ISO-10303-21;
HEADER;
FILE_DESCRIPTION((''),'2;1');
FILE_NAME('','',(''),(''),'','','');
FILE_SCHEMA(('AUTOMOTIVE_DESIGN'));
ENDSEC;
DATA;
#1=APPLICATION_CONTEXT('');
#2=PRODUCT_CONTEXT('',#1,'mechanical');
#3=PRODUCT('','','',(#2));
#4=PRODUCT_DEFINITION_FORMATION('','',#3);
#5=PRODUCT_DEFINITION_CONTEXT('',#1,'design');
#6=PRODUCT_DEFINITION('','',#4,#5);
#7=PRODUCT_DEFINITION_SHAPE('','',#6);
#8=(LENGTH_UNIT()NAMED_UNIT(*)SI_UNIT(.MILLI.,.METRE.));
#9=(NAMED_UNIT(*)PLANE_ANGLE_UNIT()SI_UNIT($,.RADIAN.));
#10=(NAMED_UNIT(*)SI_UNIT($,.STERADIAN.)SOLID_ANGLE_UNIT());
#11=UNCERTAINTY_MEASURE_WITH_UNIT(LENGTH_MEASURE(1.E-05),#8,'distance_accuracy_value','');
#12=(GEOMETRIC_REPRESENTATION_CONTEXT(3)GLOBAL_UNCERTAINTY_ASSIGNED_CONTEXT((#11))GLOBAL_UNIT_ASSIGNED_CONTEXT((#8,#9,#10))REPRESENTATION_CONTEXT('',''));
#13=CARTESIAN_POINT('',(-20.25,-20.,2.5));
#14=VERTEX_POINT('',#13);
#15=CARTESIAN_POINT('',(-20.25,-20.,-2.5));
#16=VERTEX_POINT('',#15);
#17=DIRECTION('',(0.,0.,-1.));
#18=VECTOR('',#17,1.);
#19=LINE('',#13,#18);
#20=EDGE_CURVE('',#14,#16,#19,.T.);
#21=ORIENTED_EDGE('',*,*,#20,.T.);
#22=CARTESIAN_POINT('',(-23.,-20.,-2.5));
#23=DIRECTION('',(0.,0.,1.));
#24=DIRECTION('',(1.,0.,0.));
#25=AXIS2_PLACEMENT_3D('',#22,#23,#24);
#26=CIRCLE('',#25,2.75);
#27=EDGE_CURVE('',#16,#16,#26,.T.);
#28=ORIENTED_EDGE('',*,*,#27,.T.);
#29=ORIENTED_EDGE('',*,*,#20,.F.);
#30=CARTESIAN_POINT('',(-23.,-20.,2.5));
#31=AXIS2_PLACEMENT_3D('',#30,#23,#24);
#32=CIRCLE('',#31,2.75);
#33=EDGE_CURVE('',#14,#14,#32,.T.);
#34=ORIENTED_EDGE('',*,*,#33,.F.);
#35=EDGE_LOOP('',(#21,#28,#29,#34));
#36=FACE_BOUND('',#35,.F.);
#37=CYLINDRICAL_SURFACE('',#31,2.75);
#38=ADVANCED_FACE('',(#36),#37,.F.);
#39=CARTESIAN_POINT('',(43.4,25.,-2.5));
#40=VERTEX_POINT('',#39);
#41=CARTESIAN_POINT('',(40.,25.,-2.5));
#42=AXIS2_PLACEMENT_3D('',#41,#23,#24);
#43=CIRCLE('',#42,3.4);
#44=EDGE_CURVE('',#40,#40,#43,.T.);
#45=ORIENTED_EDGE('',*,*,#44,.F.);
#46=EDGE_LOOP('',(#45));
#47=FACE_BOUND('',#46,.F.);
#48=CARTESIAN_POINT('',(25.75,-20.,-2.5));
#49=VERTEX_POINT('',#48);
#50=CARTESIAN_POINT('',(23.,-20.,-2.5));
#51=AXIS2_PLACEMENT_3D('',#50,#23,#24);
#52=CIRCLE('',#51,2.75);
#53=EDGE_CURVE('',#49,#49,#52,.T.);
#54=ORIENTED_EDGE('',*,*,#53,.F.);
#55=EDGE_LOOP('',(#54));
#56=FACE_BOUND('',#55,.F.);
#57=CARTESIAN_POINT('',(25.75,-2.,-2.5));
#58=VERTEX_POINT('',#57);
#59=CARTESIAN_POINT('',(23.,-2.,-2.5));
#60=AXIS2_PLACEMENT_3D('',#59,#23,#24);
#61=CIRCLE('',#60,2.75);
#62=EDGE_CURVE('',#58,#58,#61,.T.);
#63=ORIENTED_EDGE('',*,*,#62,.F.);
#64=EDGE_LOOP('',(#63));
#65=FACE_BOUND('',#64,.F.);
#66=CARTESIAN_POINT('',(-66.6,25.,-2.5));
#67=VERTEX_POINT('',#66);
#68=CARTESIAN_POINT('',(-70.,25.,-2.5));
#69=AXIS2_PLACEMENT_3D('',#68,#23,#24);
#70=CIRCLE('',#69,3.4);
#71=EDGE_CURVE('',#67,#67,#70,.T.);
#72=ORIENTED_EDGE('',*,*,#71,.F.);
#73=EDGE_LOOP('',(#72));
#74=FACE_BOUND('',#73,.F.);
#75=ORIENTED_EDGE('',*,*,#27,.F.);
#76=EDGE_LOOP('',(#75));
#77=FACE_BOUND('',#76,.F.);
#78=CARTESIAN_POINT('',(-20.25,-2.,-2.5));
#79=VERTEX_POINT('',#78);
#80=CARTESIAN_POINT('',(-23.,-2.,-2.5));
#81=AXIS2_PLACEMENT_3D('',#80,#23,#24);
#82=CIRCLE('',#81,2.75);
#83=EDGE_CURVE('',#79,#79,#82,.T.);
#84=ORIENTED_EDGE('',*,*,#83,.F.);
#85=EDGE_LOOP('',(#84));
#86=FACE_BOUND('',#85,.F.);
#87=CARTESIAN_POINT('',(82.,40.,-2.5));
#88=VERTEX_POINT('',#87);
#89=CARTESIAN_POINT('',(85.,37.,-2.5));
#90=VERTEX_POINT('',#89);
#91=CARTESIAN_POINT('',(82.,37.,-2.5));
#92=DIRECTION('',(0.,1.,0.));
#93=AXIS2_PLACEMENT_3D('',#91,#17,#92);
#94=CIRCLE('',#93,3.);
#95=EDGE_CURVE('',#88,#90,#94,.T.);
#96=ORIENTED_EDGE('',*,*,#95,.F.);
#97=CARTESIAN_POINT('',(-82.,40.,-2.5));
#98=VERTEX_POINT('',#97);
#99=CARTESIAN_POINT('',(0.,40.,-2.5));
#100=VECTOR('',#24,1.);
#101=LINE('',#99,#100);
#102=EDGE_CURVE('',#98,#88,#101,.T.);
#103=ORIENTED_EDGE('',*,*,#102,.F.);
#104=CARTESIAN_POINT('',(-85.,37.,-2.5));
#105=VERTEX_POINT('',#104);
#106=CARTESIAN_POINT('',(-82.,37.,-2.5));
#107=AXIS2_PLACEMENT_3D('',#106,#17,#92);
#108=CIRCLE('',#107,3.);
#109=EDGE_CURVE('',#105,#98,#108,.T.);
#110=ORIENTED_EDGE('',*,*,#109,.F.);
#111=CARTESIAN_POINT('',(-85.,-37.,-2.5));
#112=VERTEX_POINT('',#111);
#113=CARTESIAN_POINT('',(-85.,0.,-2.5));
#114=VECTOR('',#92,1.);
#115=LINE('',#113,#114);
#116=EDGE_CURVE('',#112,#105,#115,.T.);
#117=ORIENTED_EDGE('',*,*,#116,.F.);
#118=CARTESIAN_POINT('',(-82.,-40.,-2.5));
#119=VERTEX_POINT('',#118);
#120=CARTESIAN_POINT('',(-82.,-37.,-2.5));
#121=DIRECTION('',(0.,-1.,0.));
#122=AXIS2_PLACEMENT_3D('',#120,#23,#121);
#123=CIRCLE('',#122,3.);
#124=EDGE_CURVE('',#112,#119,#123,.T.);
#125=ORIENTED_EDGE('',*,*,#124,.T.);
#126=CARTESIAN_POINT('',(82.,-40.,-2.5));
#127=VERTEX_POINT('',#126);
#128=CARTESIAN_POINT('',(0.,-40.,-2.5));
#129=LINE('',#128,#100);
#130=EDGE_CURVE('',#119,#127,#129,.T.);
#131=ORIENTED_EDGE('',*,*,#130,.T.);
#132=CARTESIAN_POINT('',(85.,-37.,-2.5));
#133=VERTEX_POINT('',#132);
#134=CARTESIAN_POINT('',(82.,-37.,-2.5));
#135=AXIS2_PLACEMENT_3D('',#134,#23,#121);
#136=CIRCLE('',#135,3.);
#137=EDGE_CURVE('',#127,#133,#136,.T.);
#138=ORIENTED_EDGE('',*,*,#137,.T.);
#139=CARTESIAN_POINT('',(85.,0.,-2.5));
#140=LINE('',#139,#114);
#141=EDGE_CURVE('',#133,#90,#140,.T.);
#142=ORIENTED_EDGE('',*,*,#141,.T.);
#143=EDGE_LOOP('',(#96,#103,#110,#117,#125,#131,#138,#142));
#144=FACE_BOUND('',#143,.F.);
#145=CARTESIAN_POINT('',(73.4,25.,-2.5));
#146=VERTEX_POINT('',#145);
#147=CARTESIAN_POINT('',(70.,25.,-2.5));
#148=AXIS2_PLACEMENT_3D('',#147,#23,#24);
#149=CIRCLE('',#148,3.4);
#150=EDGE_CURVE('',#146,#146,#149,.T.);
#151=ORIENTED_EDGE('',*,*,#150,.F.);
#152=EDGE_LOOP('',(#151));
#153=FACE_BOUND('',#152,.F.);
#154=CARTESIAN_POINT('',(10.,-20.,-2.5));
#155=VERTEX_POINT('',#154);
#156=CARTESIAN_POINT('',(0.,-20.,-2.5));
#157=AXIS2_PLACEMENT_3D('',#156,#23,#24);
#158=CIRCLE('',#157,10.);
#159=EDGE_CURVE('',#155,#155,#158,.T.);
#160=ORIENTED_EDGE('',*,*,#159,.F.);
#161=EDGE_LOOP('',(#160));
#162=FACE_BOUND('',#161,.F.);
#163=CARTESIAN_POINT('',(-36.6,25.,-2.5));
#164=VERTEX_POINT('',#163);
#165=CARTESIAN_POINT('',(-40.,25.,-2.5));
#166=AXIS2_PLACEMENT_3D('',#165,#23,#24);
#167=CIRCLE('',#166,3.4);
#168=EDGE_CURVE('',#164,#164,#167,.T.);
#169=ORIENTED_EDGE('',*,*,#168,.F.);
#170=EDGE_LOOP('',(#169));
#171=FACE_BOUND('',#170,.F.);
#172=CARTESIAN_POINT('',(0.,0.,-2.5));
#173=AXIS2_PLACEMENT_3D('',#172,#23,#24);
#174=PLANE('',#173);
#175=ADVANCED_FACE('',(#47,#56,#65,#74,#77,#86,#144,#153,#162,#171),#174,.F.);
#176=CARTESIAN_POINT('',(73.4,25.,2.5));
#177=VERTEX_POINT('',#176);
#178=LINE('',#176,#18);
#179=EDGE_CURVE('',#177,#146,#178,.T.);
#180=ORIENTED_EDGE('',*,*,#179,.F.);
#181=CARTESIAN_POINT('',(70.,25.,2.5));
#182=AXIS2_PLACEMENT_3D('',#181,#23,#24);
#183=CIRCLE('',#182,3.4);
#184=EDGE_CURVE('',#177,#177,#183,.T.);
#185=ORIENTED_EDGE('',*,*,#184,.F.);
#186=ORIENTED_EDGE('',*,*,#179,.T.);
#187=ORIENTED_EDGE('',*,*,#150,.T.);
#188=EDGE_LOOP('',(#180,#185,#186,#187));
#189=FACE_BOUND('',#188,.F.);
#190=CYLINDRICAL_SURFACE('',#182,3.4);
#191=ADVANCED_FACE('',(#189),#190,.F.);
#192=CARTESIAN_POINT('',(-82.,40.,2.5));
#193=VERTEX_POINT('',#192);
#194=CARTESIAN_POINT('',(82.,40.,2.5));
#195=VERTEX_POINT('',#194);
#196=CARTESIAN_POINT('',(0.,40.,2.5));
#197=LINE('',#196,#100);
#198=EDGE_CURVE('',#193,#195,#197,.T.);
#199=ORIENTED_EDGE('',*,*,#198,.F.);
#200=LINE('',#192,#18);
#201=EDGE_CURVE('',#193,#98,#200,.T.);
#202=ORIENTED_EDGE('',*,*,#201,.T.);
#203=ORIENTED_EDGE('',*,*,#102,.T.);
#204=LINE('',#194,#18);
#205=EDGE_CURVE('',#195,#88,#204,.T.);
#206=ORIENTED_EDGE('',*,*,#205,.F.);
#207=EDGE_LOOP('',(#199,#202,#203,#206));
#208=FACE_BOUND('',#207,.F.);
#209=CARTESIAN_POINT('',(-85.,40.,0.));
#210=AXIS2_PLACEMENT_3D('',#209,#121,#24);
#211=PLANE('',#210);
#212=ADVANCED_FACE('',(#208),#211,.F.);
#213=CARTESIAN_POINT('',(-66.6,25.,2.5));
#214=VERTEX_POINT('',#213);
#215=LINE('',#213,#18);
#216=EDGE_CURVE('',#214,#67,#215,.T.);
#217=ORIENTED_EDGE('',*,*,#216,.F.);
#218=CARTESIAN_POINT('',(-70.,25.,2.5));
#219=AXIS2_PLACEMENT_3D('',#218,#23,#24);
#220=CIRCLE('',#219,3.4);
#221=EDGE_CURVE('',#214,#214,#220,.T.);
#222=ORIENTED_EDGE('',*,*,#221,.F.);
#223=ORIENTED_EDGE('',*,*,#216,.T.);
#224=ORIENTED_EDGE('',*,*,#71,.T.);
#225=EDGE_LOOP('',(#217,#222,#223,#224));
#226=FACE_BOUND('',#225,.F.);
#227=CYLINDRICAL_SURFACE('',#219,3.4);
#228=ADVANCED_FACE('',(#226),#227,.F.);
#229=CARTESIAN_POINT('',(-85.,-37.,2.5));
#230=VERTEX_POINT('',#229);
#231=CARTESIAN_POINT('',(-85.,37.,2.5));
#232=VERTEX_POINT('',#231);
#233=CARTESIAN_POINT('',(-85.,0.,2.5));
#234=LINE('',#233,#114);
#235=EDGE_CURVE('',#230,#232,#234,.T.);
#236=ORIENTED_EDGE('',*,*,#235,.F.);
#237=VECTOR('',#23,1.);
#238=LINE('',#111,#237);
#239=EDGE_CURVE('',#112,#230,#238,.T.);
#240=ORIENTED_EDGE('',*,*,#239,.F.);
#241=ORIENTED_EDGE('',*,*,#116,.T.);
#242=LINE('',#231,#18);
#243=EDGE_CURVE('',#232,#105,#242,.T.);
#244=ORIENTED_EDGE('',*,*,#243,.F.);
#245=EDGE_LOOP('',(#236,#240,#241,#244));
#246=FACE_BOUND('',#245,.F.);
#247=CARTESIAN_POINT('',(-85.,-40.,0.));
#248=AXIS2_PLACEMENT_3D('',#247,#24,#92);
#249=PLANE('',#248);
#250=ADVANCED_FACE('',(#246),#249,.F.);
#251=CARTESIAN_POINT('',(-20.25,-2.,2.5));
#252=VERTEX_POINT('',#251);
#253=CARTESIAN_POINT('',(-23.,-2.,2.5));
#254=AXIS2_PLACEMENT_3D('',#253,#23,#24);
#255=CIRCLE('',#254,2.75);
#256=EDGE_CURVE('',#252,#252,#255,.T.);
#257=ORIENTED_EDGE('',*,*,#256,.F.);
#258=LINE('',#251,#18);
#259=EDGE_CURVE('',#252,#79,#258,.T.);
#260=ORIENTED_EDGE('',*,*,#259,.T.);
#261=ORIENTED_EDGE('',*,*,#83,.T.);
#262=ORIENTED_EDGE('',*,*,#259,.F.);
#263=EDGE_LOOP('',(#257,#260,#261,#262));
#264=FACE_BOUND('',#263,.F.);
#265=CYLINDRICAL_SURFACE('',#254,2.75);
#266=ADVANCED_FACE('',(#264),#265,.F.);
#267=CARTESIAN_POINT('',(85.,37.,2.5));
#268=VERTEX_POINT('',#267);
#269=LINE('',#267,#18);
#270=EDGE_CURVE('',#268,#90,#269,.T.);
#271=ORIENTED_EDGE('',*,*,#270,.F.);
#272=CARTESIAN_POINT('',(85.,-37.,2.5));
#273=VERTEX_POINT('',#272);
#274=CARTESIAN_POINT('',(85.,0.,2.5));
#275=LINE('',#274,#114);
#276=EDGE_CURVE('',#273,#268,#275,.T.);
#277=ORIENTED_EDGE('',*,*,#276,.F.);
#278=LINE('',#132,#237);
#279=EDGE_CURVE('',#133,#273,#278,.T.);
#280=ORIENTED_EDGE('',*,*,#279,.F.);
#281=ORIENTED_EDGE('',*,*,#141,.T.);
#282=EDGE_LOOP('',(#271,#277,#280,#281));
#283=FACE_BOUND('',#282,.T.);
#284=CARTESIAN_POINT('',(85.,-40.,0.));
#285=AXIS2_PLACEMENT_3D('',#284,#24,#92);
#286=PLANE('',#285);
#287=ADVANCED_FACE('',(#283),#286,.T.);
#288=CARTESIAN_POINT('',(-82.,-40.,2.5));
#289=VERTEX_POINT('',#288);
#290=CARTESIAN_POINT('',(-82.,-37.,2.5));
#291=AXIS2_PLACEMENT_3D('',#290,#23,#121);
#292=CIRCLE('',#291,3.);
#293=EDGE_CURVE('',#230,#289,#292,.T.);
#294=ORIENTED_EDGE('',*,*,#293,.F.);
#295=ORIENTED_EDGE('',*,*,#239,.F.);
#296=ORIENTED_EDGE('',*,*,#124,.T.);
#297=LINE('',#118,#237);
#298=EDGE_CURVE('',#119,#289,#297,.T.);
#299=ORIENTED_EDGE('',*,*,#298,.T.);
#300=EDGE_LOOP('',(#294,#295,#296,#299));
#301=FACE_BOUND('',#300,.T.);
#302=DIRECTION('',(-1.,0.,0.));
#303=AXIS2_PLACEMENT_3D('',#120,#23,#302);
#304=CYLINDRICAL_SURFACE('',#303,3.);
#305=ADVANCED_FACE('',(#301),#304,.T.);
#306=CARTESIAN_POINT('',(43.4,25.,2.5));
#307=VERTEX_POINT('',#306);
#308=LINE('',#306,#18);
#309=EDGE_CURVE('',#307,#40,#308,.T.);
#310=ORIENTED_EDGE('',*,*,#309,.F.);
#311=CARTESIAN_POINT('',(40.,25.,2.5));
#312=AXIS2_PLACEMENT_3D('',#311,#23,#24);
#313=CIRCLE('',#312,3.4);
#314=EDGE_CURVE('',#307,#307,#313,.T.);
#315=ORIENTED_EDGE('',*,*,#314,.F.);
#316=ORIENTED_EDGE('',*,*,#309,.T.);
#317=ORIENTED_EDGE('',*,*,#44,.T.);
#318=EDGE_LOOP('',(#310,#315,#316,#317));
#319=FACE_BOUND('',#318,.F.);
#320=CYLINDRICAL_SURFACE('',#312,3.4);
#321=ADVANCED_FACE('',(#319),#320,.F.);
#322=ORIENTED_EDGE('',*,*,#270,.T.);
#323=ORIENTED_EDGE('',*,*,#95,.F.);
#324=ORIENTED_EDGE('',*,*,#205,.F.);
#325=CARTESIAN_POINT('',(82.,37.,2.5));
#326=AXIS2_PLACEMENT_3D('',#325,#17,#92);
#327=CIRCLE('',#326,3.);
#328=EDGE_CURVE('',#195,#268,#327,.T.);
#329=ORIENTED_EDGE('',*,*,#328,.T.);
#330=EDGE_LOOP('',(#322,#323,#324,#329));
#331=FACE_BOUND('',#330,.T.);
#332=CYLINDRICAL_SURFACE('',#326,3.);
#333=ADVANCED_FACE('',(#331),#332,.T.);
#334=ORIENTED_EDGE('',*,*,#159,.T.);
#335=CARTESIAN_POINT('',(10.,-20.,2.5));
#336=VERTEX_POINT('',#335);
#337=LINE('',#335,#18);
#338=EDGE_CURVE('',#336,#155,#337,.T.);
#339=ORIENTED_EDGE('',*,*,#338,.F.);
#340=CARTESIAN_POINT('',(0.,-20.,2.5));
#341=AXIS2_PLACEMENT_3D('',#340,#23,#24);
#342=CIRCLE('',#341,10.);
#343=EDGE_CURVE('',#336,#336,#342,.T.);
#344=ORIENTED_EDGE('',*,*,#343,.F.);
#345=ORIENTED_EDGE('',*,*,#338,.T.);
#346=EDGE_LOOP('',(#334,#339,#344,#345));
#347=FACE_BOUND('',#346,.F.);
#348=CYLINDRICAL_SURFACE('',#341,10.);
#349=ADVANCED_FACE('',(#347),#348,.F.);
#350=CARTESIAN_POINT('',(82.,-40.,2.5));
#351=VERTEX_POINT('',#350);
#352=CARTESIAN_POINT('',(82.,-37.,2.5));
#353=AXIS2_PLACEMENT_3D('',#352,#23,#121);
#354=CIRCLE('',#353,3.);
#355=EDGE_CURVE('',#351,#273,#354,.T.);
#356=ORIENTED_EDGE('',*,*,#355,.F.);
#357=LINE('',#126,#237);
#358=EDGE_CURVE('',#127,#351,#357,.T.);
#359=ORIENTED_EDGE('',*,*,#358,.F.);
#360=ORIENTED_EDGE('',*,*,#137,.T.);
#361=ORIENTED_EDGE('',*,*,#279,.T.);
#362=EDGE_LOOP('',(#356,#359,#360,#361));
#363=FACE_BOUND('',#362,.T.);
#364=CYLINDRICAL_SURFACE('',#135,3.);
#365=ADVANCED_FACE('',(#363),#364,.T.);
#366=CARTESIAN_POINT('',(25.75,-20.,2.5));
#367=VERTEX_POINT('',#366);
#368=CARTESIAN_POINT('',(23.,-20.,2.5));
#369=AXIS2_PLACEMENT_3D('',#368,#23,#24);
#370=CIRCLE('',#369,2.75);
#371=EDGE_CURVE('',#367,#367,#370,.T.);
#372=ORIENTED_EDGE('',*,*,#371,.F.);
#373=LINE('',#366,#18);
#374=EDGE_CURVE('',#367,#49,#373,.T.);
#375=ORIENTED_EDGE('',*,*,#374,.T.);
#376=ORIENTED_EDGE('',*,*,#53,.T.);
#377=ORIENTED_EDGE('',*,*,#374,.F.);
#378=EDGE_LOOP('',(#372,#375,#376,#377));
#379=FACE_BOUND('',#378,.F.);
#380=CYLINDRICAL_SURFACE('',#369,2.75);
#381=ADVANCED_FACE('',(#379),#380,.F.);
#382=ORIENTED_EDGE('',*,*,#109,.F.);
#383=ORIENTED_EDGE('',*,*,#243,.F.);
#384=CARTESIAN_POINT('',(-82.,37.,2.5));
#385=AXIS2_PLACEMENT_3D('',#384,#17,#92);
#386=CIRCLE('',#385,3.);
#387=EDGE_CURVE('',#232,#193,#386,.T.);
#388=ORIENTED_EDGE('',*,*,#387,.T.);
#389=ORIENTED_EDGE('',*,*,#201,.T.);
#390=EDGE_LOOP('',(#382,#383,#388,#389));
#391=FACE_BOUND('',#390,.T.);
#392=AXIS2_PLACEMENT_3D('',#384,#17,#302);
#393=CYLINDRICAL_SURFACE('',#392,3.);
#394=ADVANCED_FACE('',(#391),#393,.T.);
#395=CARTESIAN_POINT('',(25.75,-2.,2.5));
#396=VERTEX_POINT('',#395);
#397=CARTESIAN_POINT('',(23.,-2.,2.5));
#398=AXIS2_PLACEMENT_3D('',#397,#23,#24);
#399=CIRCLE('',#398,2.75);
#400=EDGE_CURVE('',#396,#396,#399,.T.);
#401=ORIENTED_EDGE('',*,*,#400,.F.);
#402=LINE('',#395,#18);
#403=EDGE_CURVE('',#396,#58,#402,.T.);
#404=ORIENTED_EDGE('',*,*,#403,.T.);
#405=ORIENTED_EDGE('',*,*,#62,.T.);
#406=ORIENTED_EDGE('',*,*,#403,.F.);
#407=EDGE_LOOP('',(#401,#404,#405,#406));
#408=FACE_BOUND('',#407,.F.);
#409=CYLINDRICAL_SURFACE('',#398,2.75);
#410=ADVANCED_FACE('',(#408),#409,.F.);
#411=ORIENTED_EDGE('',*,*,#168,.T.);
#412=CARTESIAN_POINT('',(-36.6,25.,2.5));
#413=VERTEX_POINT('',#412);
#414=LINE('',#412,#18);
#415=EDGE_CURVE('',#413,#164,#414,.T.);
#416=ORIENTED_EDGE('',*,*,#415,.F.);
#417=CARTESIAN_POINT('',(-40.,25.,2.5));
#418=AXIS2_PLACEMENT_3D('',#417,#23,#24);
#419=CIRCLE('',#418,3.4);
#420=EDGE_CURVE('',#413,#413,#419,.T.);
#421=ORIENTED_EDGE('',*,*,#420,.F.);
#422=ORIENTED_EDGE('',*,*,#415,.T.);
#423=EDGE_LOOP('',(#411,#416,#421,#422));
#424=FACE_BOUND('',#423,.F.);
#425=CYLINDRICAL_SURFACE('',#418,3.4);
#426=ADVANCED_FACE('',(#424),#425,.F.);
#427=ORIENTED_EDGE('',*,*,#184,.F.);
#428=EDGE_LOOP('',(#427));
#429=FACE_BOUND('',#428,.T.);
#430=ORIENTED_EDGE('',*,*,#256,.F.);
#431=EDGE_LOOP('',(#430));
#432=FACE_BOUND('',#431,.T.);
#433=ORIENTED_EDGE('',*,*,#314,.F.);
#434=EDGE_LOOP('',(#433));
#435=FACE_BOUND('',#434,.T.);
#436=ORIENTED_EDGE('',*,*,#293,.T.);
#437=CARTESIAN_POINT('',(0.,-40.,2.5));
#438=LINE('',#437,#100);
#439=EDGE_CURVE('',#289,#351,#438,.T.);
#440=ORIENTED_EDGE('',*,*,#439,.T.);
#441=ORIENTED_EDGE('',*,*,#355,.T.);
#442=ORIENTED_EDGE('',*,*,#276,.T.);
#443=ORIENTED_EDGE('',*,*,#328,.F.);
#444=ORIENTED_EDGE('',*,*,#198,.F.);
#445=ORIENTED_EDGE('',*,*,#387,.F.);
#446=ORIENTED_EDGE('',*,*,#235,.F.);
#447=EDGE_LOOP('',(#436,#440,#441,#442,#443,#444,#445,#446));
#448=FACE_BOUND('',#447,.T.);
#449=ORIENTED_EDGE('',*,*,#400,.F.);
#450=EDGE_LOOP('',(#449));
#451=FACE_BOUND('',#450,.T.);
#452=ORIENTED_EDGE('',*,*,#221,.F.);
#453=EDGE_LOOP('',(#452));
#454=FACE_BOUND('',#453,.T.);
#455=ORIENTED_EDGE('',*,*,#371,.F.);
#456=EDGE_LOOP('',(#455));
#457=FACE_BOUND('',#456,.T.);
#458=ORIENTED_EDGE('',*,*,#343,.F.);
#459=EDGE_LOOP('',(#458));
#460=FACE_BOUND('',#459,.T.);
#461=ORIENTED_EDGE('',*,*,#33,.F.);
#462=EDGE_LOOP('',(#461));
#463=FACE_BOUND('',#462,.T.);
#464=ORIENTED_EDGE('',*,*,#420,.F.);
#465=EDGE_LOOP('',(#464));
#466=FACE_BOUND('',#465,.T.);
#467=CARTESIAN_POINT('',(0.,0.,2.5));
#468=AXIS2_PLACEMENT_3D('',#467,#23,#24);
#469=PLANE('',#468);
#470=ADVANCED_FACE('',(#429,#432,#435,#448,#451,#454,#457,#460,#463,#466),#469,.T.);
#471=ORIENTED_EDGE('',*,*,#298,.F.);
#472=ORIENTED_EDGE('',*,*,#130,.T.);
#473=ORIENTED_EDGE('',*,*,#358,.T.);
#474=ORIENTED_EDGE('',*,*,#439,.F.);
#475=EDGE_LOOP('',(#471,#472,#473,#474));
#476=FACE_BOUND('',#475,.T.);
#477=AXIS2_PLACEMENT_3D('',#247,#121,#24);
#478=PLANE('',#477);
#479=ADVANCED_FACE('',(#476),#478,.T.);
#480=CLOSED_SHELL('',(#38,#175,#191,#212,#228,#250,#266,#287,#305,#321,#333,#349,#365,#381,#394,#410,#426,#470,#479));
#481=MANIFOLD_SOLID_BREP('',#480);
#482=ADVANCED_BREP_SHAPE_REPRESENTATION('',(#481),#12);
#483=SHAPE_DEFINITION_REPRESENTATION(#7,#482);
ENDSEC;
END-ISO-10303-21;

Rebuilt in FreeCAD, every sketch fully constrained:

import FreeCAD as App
import Part
import Sketcher
from FreeCAD import Vector
Q = App.Units.Quantity


def edges_at(feature, points):
    """Names of the edges that pass closest to the given points."""
    edges = feature.Shape.Edges
    near = lambda p: min(range(len(edges)), key=lambda i: edges[i].distToShape(Part.Vertex(*p))[0])
    return sorted({f"Edge{near(p) + 1}" for p in points})

doc = App.newDocument("Part")
body = doc.addObject("PartDesign::Body", "Body")

# Sketch on XY plane
sketch1 = doc.addObject("Sketcher::SketchObject", "Sketch")
body.addObject(sketch1)
sketch1.AttachmentSupport = (doc.XY_Plane, [""])
sketch1.MapMode = "FlatFace"
sketch1.addGeometry([
    Part.LineSegment(Vector(-85, 40, 0), Vector(-85, -40, 0)),
    Part.LineSegment(Vector(-85, -40, 0), Vector(85, -40, 0)),
    Part.LineSegment(Vector(85, -40, 0), Vector(85, 40, 0)),
    Part.LineSegment(Vector(85, 40, 0), Vector(-85, 40, 0)),
], False)
sketch1.addConstraint([
    Sketcher.Constraint("Coincident", 0, 2, 1, 1),
    Sketcher.Constraint("Coincident", 1, 2, 2, 1),
    Sketcher.Constraint("Coincident", 2, 2, 3, 1),
    Sketcher.Constraint("Coincident", 3, 2, 0, 1),
    Sketcher.Constraint("Vertical", 0),
    Sketcher.Constraint("Horizontal", 1),
    Sketcher.Constraint("Vertical", 2),
    Sketcher.Constraint("Horizontal", 3),
    Sketcher.Constraint("Symmetric", 0, 2, 2, 2, -1, 1),
    Sketcher.Constraint("DistanceX", 1, 1, 1, 2, Q("170 mm")),
    Sketcher.Constraint("DistanceY", 0, 2, 0, 1, Q("80 mm")),
])
pad1 = doc.addObject("PartDesign::Pad", "Pad")
body.addObject(pad1)
pad1.Profile = sketch1
pad1.Length = 5
pad1.Midplane = True

# Sketch on XY plane
sketch2 = doc.addObject("Sketcher::SketchObject", "Sketch001")
body.addObject(sketch2)
sketch2.AttachmentSupport = (doc.XY_Plane, [""])
sketch2.MapMode = "FlatFace"
sketch2.AttachmentOffset = App.Placement(Vector(0, 0, 2.5), App.Rotation())
sketch2.addGeometry([
    Part.Circle(Vector(40, 25, 0), Vector(0, 0, 1), 3.4),  # 0
    Part.Circle(Vector(70, 25, 0), Vector(0, 0, 1), 3.4),  # 1
    Part.Circle(Vector(-40, 25, 0), Vector(0, 0, 1), 3.4),  # 2
    Part.Circle(Vector(-70, 25, 0), Vector(0, 0, 1), 3.4),  # 3
    Part.Circle(Vector(0, -20, 0), Vector(0, 0, 1), 10),  # 4
    Part.Circle(Vector(-23, -20, 0), Vector(0, 0, 1), 2.75),  # 5
    Part.Circle(Vector(-23, -2, 0), Vector(0, 0, 1), 2.75),  # 6
    Part.Circle(Vector(23, -2, 0), Vector(0, 0, 1), 2.75),  # 7
    Part.Circle(Vector(23, -20, 0), Vector(0, 0, 1), 2.75),  # 8
], False)
sketch2.addConstraint([
    Sketcher.Constraint("Equal", 0, 1),
    Sketcher.Constraint("Equal", 1, 2),
    Sketcher.Constraint("Equal", 2, 3),
    Sketcher.Constraint("Equal", 5, 6),
    Sketcher.Constraint("Equal", 6, 7),
    Sketcher.Constraint("Equal", 7, 8),
    Sketcher.Constraint("Symmetric", 0, 3, 2, 3, -2),
    Sketcher.Constraint("Symmetric", 1, 3, 3, 3, -2),
    Sketcher.Constraint("Symmetric", 6, 3, 7, 3, -2),
    Sketcher.Constraint("Symmetric", 5, 3, 8, 3, -2),
    Sketcher.Constraint("PointOnObject", 4, 3, -2),
    Sketcher.Constraint("Horizontal", 0, 3, 1, 3),
    Sketcher.Constraint("Horizontal", 4, 3, 5, 3),
    Sketcher.Constraint("Vertical", 5, 3, 6, 3),
    Sketcher.Constraint("Diameter", 4, Q("20 mm")),
    Sketcher.Constraint("Diameter", 0, Q("6.8 mm")),
    Sketcher.Constraint("Diameter", 5, Q("5.5 mm")),
    Sketcher.Constraint("DistanceX", -1, 1, 0, 3, Q("40 mm")),
    Sketcher.Constraint("DistanceY", -1, 1, 0, 3, Q("25 mm")),
    Sketcher.Constraint("DistanceX", -1, 1, 1, 3, Q("70 mm")),
    Sketcher.Constraint("DistanceY", 4, 3, -1, 1, Q("20 mm")),
    Sketcher.Constraint("DistanceX", 5, 3, -1, 1, Q("23 mm")),
    Sketcher.Constraint("DistanceY", 6, 3, -1, 1, Q("2 mm")),
])
pocket1 = doc.addObject("PartDesign::Pocket", "Pocket")
body.addObject(pocket1)
pocket1.Profile = sketch2
pocket1.Length = 5
doc.recompute()

fillet = doc.addObject("PartDesign::Fillet", "Fillet")
body.addObject(fillet)
fillet.Base = (pocket1, edges_at(pocket1, [
    (-85, -40, 0),
    (85, -40, 0),
    (-85, 40, 0),
    (85, 40, 0),
]))
fillet.Radius = 3

doc.recompute()
